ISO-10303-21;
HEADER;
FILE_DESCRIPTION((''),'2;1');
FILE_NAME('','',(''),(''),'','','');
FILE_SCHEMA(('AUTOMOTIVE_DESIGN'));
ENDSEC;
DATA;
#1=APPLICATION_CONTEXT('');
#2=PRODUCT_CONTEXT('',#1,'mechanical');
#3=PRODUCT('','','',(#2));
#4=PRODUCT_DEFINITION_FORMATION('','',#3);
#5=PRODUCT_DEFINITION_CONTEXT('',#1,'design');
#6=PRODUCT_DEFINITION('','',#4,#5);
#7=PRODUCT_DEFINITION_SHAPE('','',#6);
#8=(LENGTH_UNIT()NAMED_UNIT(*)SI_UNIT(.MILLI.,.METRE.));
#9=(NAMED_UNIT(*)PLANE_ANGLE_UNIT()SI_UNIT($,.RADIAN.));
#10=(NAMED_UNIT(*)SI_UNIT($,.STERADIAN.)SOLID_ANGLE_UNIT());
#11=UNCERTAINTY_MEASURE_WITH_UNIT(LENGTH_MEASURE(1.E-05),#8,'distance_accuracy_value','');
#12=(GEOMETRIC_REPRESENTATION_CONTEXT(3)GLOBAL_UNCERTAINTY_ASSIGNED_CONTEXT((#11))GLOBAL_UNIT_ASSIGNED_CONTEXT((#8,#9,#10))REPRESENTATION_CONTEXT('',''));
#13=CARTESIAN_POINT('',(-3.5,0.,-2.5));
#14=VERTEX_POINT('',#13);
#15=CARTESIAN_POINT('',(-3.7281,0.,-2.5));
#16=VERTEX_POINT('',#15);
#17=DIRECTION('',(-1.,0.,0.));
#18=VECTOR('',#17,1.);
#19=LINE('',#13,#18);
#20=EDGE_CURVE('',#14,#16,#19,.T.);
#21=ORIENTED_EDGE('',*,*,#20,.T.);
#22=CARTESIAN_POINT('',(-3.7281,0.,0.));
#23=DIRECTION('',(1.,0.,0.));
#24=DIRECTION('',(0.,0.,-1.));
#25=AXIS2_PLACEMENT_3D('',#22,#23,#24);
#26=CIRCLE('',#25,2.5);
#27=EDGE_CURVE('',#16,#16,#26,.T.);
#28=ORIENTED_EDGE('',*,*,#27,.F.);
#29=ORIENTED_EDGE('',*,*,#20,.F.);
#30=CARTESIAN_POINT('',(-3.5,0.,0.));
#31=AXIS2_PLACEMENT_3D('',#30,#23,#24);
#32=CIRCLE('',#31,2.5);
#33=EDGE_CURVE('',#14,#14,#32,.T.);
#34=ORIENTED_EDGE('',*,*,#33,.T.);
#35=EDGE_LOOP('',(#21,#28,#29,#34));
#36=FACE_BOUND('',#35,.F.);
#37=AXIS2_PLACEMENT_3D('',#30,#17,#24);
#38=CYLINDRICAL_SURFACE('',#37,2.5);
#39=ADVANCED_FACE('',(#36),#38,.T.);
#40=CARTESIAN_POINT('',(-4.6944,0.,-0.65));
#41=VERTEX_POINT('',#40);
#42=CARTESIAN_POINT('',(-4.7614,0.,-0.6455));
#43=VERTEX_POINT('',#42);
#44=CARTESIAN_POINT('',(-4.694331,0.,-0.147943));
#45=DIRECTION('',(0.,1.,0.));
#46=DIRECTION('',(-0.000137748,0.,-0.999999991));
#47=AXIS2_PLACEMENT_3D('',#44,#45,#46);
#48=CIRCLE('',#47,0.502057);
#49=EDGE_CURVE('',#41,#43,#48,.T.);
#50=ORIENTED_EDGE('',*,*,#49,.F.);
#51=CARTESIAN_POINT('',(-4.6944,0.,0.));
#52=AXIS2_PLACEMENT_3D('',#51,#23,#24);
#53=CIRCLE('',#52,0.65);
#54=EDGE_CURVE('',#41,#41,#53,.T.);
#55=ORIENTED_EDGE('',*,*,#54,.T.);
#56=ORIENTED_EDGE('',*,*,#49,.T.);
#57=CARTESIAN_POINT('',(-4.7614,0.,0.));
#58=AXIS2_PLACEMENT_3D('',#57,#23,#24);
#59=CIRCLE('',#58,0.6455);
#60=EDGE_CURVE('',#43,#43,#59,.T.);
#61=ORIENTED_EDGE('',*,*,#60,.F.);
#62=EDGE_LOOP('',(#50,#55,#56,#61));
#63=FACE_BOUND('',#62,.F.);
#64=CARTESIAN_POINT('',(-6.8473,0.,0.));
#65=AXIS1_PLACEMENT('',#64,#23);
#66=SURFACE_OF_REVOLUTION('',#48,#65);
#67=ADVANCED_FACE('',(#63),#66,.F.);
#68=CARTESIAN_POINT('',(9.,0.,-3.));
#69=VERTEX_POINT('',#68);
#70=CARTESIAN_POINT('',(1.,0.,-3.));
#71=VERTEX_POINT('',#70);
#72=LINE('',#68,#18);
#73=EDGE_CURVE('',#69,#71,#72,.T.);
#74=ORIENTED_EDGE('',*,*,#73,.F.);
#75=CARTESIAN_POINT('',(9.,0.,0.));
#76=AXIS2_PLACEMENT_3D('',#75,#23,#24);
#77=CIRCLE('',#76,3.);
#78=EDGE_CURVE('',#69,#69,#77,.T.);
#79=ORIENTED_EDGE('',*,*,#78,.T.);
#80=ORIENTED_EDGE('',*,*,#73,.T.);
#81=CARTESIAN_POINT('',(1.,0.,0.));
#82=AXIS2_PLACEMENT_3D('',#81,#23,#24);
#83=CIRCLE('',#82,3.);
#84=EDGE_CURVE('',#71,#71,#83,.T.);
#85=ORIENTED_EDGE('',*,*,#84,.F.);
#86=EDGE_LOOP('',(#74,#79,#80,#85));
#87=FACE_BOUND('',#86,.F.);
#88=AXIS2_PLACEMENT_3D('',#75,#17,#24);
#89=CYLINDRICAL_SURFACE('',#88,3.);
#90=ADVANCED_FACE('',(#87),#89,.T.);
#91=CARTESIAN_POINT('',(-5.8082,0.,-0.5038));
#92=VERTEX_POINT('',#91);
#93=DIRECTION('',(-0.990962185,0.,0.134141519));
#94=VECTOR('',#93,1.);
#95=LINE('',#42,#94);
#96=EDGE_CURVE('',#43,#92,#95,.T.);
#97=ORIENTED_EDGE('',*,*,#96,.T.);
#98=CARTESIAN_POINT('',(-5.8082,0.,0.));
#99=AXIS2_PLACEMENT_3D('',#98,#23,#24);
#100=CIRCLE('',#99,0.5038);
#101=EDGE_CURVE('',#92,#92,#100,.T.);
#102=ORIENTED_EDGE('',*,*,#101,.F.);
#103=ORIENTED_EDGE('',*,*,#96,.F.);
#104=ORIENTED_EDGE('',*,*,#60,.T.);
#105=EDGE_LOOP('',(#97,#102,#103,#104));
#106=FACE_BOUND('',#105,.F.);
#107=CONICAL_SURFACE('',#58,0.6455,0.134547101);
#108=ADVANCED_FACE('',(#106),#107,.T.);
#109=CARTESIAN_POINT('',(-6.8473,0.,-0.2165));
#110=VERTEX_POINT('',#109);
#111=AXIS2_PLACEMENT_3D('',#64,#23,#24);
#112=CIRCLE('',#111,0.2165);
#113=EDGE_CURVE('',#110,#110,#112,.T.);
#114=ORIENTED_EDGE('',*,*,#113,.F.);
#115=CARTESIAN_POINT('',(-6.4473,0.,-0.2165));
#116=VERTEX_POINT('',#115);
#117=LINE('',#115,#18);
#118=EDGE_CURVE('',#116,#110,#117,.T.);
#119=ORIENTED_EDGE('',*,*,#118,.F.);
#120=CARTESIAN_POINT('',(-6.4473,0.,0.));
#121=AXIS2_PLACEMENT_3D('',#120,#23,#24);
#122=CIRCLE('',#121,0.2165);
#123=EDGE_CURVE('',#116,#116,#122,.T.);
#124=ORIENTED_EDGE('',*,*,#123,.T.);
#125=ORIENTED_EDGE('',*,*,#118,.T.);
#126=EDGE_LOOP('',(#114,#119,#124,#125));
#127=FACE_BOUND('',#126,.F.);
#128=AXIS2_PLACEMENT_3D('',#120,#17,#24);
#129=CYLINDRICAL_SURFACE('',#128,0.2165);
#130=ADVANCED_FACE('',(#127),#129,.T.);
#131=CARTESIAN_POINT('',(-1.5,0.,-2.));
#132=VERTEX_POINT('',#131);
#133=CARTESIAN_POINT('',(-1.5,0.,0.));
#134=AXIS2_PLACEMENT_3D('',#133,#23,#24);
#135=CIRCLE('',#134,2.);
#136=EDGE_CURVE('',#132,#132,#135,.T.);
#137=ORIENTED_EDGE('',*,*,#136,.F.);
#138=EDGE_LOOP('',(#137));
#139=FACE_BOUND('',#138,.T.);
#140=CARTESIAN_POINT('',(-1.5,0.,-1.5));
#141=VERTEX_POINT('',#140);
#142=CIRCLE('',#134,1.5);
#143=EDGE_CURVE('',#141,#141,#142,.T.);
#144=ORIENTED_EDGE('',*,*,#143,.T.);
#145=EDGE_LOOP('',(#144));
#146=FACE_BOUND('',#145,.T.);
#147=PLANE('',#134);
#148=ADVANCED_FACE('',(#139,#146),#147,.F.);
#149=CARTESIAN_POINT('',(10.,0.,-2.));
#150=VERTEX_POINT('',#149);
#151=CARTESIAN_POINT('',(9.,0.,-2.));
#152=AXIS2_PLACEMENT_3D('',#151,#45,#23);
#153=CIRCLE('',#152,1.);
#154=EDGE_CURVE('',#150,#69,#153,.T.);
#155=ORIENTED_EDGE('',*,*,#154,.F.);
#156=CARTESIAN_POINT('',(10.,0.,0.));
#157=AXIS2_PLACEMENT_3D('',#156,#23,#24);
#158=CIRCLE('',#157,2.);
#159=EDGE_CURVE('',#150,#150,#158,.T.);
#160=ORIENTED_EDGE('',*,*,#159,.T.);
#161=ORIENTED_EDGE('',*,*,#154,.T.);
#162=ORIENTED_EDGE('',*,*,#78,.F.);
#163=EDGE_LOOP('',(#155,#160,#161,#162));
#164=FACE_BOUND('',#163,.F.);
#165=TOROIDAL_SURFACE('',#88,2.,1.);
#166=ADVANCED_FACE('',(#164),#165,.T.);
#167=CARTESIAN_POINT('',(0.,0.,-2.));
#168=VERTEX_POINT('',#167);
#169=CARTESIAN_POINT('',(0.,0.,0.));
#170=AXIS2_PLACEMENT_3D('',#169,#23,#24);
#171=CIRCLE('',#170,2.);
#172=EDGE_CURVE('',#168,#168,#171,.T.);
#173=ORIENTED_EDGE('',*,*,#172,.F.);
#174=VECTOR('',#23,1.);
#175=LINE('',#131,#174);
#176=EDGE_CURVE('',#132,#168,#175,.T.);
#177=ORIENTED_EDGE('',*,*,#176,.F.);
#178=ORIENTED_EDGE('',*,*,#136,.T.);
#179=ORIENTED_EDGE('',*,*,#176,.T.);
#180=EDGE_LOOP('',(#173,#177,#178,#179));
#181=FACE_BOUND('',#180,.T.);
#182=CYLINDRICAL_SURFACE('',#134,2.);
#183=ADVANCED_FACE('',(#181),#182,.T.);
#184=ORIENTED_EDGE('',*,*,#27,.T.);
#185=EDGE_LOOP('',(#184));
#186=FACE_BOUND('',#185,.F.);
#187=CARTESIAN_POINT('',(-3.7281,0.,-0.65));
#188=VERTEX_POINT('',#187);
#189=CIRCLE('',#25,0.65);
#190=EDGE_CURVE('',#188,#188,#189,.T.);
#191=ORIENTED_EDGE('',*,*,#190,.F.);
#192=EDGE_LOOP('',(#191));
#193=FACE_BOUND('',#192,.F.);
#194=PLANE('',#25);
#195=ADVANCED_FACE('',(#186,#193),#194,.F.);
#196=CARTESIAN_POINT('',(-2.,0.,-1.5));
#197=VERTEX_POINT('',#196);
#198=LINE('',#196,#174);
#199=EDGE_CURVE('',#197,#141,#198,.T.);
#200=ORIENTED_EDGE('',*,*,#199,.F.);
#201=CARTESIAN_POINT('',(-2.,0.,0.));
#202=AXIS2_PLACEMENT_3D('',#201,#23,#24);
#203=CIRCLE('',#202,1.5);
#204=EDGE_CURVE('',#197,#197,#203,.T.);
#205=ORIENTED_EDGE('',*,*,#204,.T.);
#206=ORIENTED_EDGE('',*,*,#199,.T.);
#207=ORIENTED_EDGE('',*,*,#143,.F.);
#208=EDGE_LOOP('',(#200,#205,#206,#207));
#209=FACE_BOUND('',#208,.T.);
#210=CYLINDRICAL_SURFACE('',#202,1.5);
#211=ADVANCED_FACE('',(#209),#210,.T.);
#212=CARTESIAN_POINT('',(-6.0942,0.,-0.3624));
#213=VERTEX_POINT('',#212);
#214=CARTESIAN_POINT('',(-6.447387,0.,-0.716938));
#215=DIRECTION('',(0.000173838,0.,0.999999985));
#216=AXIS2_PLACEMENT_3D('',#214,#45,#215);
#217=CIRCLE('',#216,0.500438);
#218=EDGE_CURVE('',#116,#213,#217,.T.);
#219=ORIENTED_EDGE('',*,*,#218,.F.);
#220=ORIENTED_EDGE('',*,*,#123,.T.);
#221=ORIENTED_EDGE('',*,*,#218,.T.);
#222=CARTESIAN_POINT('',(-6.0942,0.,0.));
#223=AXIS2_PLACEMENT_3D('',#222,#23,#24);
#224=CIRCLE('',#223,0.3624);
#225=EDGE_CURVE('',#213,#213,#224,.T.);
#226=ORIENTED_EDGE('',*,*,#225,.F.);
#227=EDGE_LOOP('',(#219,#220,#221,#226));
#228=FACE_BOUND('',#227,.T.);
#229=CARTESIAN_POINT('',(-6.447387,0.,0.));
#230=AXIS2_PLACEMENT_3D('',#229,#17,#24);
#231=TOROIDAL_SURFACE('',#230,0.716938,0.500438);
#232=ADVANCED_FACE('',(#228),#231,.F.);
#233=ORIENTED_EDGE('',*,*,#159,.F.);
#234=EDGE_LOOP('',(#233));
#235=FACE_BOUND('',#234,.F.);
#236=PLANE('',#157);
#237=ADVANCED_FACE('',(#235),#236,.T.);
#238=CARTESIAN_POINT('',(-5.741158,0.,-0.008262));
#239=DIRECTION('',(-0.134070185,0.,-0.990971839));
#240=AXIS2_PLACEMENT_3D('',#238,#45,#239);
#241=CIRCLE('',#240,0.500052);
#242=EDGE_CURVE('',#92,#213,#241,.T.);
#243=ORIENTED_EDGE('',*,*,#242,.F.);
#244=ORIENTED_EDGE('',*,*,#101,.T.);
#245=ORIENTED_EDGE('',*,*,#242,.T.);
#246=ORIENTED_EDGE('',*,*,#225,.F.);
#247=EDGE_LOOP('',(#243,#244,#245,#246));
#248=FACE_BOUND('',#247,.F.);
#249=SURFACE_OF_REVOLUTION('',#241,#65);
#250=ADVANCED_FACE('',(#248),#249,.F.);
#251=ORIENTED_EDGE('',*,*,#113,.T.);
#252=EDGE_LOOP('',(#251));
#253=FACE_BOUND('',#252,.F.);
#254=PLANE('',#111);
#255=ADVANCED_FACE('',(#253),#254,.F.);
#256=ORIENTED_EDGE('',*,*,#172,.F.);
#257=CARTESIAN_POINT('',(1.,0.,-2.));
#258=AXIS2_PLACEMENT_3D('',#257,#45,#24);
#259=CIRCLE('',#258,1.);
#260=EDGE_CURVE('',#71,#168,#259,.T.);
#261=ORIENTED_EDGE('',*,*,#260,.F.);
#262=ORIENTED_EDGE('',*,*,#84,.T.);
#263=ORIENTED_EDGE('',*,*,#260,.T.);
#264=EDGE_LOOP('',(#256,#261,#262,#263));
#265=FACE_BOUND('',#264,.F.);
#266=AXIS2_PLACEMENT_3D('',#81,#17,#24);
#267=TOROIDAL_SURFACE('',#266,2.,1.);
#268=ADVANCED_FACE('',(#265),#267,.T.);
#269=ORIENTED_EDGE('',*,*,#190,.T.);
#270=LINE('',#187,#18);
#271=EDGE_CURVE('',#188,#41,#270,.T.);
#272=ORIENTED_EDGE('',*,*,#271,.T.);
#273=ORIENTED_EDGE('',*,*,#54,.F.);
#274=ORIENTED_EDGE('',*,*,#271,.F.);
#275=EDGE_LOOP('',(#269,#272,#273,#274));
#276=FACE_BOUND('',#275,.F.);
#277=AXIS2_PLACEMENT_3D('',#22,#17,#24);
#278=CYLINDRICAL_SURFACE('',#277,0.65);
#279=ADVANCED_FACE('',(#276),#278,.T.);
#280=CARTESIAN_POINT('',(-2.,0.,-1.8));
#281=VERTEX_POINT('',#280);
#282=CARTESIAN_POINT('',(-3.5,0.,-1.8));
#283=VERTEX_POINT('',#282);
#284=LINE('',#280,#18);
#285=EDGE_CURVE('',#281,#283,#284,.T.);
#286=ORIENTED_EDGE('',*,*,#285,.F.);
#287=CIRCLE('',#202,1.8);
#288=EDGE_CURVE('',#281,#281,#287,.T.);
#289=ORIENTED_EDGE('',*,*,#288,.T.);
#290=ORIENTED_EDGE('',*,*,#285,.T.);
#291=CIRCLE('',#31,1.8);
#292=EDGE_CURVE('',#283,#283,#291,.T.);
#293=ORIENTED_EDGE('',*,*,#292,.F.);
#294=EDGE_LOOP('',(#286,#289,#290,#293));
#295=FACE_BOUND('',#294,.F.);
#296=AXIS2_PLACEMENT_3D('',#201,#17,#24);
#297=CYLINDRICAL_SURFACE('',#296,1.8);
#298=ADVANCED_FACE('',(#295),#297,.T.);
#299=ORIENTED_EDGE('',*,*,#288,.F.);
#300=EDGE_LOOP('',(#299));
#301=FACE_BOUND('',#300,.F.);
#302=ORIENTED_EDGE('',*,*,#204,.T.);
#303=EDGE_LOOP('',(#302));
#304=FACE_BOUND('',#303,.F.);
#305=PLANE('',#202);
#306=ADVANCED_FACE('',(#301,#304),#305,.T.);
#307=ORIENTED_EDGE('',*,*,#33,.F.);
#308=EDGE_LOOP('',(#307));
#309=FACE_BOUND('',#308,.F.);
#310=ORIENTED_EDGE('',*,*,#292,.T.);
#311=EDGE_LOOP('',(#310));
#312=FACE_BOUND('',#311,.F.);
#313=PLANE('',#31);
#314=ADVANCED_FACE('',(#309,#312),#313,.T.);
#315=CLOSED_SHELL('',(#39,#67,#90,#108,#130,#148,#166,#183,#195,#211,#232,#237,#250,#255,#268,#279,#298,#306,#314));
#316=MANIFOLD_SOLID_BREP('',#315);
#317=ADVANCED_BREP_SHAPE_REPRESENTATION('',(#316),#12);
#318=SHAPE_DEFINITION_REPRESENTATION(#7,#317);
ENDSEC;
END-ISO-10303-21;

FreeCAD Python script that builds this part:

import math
import FreeCAD as App
import Part
import Sketcher
from FreeCAD import Vector
Q = App.Units.Quantity

doc = App.newDocument("Part")
params = doc.addObject("Spreadsheet::Sheet", "Params")
for row, (alias, value) in enumerate([
    ("sketch1_radius", "1 mm"),
    ("sketch1_radius2", "0.5 mm"),
    ("sketch1_width", "1.5 mm"),
    ("sketch1_width2", "0.5 mm"),
    ("sketch1_width3", "0.4 mm"),
    ("revolution_angle", "360 deg"),
], start=1):
    params.set(f"A{row}", alias)
    params.set(f"B{row}", "=" + value)
    params.setAlias(f"B{row}", alias)

body = doc.addObject("PartDesign::Body", "Body")

# Sketch on XZ plane
sketch1 = body.newObject("Sketcher::SketchObject", "Sketch")
sketch1.AttachmentSupport = (doc.getObject("XZ_Plane"), [""])
sketch1.MapMode = "FlatFace"
sketch1.addGeometry(Part.LineSegment(Vector(-6.85, 0, 0), Vector(10, 0, 0)), False)
sketch1.addGeometry(Part.LineSegment(Vector(10, 0, 0), Vector(10, -2, 0)), False)
sketch1.addGeometry(Part.ArcOfCircle(Part.Circle(Vector(9, -2, 0), Vector(0, 0, 1), 1), math.radians(-90), math.radians(0)), False)
sketch1.addGeometry(Part.LineSegment(Vector(9, -3, 0), Vector(1, -3, 0)), False)
sketch1.addGeometry(Part.ArcOfCircle(Part.Circle(Vector(1, -2, 0), Vector(0, 0, 1), 1), math.radians(180), math.radians(270)), False)
sketch1.addGeometry(Part.LineSegment(Vector(0, -2, 0), Vector(-1.5, -2, 0)), False)
sketch1.addGeometry(Part.LineSegment(Vector(-1.5, -2, 0), Vector(-1.5, -1.5, 0)), False)
sketch1.addGeometry(Part.LineSegment(Vector(-1.5, -1.5, 0), Vector(-2, -1.5, 0)), False)
sketch1.addGeometry(Part.LineSegment(Vector(-2, -1.5, 0), Vector(-2, -1.8, 0)), False)
sketch1.addGeometry(Part.LineSegment(Vector(-2, -1.8, 0), Vector(-3.5, -1.8, 0)), False)
sketch1.addGeometry(Part.LineSegment(Vector(-3.5, -1.8, 0), Vector(-3.5, -2.5, 0)), False)
sketch1.addGeometry(Part.LineSegment(Vector(-3.5, -2.5, 0), Vector(-3.73, -2.5, 0)), False)
sketch1.addGeometry(Part.LineSegment(Vector(-3.73, -2.5, 0), Vector(-3.73, -0.65, 0)), False)
sketch1.addGeometry(Part.LineSegment(Vector(-3.73, -0.65, 0), Vector(-4.69, -0.65, 0)), False)
sketch1.addGeometry(Part.ArcOfCircle(Part.Circle(Vector(-4.69, -0.15, 0), Vector(0, 0, 1), 0.5), math.radians(-97.68), math.radians(-90.01)), False)
sketch1.addGeometry(Part.LineSegment(Vector(-4.76, -0.65, 0), Vector(-5.81, -0.5, 0)), False)
sketch1.addGeometry(Part.ArcOfCircle(Part.Circle(Vector(-5.74, -0.01, 0), Vector(0, 0, 1), 0.5), math.radians(-135), math.radians(-98)), False)
sketch1.addGeometry(Part.ArcOfCircle(Part.Circle(Vector(-6.45, -0.72, 0), Vector(0, 0, 1), 0.5), math.radians(45), math.radians(90)), False)
sketch1.addGeometry(Part.LineSegment(Vector(-6.45, -0.22, 0), Vector(-6.85, -0.22, 0)), False)
sketch1.addGeometry(Part.LineSegment(Vector(-6.85, -0.22, 0), Vector(-6.85, 0, 0)), False)
sketch1.addConstraint(Sketcher.Constraint("Coincident", 0, 2, 1, 1))
sketch1.addConstraint(Sketcher.Constraint("Tangent", 1, 2, 2, 2))
sketch1.addConstraint(Sketcher.Constraint("Tangent", 2, 1, 3, 1))
sketch1.addConstraint(Sketcher.Constraint("Tangent", 3, 2, 4, 2))
sketch1.addConstraint(Sketcher.Constraint("Coincident", 4, 1, 5, 1))
sketch1.addConstraint(Sketcher.Constraint("Coincident", 5, 2, 6, 1))
sketch1.addConstraint(Sketcher.Constraint("Coincident", 6, 2, 7, 1))
sketch1.addConstraint(Sketcher.Constraint("Coincident", 7, 2, 8, 1))
sketch1.addConstraint(Sketcher.Constraint("Coincident", 8, 2, 9, 1))
sketch1.addConstraint(Sketcher.Constraint("Coincident", 9, 2, 10, 1))
sketch1.addConstraint(Sketcher.Constraint("Coincident", 10, 2, 11, 1))
sketch1.addConstraint(Sketcher.Constraint("Coincident", 11, 2, 12, 1))
sketch1.addConstraint(Sketcher.Constraint("Coincident", 12, 2, 13, 1))
sketch1.addConstraint(Sketcher.Constraint("Tangent", 13, 2, 14, 2))
sketch1.addConstraint(Sketcher.Constraint("Coincident", 14, 1, 15, 1))
sketch1.addConstraint(Sketcher.Constraint("Tangent", 15, 2, 16, 2))
sketch1.addConstraint(Sketcher.Constraint("Tangent", 16, 1, 17, 1))
sketch1.addConstraint(Sketcher.Constraint("Tangent", 17, 2, 18, 1))
sketch1.addConstraint(Sketcher.Constraint("Coincident", 18, 2, 19, 1))
sketch1.addConstraint(Sketcher.Constraint("Coincident", 19, 2, 0, 1))
sketch1.addConstraint(Sketcher.Constraint("Horizontal", 0))
sketch1.addConstraint(Sketcher.Constraint("Vertical", 1))
sketch1.addConstraint(Sketcher.Constraint("Horizontal", 3))
sketch1.addConstraint(Sketcher.Constraint("Horizontal", 5))
sketch1.addConstraint(Sketcher.Constraint("Vertical", 6))
sketch1.addConstraint(Sketcher.Constraint("Horizontal", 7))
sketch1.addConstraint(Sketcher.Constraint("Vertical", 8))
sketch1.addConstraint(Sketcher.Constraint("Horizontal", 9))
sketch1.addConstraint(Sketcher.Constraint("Vertical", 10))
sketch1.addConstraint(Sketcher.Constraint("Horizontal", 11))
sketch1.addConstraint(Sketcher.Constraint("Vertical", 12))
sketch1.addConstraint(Sketcher.Constraint("Horizontal", 13))
sketch1.addConstraint(Sketcher.Constraint("Horizontal", 18))
sketch1.addConstraint(Sketcher.Constraint("Vertical", 19))
sketch1.addConstraint(Sketcher.Constraint("Equal", 2, 4))
sketch1.addConstraint(Sketcher.Constraint("Equal", 16, 17))
sketch1.addConstraint(Sketcher.Constraint("PointOnObject", 0, 2, -1))
sketch1.addConstraint(Sketcher.Constraint("PointOnObject", 4, 1, -2))
sketch1.addConstraint(Sketcher.Constraint("Horizontal", 1, 2, 4, 1))
sketch1.addConstraint(Sketcher.Constraint("Equal", 5, 9))
sketch1.addConstraint(Sketcher.Constraint("Equal", 7, 6))
sketch1.addConstraint(Sketcher.Constraint("Radius", 2, Q("1 mm")))
sketch1.addConstraint(Sketcher.Constraint("Radius", 16, Q("0.5 mm")))
sketch1.addConstraint(Sketcher.Constraint("DistanceX", 5, 2, 5, 1, Q("1.5 mm")))
sketch1.addConstraint(Sketcher.Constraint("DistanceX", 7, 2, 7, 1, Q("0.5 mm")))
sketch1.addConstraint(Sketcher.Constraint("DistanceX", 18, 2, 18, 1, Q("0.4 mm")))
sketch1.addConstraint(Sketcher.Constraint("DistanceX", -1, 1, 0, 2, Q("10 mm")))
sketch1.addConstraint(Sketcher.Constraint("DistanceY", 2, 1, -1, 1, Q("3 mm")))
sketch1.addConstraint(Sketcher.Constraint("DistanceY", 10, 2, 7, 2, Q("1 mm")))
sketch1.addConstraint(Sketcher.Constraint("DistanceY", 8, 2, -1, 1, Q("1.8 mm")))
sketch1.addConstraint(Sketcher.Constraint("DistanceY", 12, 2, -1, 1, Q("0.65 mm")))
sketch1.addConstraint(Sketcher.Constraint("Radius", 14, Q("0.502 mm")))
sketch1.addConstraint(Sketcher.Constraint("DistanceX", 18, 2, -1, 1, Q("6.8473 mm")))
sketch1.addConstraint(Sketcher.Constraint("Angle", 15, Q("172.291 deg")))
sketch1.addConstraint(Sketcher.Constraint("DistanceX", 11, 2, 11, 1, Q("0.228 mm")))
sketch1.addConstraint(Sketcher.Constraint("DistanceX", 13, 2, 13, 1, Q("0.9663 mm")))
sketch1.addConstraint(Sketcher.Constraint("DistanceY", 19, 1, 19, 2, Q("0.2165 mm")))
sketch1.addConstraint(Sketcher.Constraint("DistanceX", 14, 1, 13, 2, Q("0.067 mm")))
sketch1.setExpression("Constraints[41]", "Params.sketch1_radius")
sketch1.setExpression("Constraints[42]", "Params.sketch1_radius2")
sketch1.setExpression("Constraints[43]", "Params.sketch1_width")
sketch1.setExpression("Constraints[44]", "Params.sketch1_width2")
sketch1.setExpression("Constraints[45]", "Params.sketch1_width3")
revolution = body.newObject("PartDesign::Revolution", "Revolution")
revolution.Profile = sketch1
revolution.ReferenceAxis = (sketch1, ["H_Axis"])
revolution.setExpression("Angle", "Params.revolution_angle")

doc.recompute()
